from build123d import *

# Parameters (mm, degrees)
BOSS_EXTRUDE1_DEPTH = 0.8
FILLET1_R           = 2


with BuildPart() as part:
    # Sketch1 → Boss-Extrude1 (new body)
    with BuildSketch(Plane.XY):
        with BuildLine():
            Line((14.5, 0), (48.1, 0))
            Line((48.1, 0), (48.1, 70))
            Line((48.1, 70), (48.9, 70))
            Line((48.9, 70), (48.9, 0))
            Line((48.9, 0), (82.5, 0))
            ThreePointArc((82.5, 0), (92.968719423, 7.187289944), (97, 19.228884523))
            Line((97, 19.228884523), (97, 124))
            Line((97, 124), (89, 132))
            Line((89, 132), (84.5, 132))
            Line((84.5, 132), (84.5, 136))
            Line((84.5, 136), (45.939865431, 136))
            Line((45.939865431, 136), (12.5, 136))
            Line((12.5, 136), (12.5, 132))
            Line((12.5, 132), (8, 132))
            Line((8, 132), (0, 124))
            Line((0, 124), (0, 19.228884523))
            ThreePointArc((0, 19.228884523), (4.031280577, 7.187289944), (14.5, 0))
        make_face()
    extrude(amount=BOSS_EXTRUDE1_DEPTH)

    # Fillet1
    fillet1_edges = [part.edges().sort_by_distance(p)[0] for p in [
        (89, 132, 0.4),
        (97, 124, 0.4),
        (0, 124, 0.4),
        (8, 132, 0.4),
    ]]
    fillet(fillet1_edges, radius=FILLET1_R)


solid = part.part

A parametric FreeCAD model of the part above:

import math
import FreeCAD as App
import Part
import Sketcher
from FreeCAD import Vector
Q = App.Units.Quantity


def edges_at(feature, points):
    """Names of the edges that pass closest to the given points."""
    edges = feature.Shape.Edges
    near = lambda p: min(range(len(edges)), key=lambda i: edges[i].distToShape(Part.Vertex(*p))[0])
    return sorted({f"Edge{near(p) + 1}" for p in points})

doc = App.newDocument("Part")
body = doc.addObject("PartDesign::Body", "Body")

# Sketch on XY plane
sketch1 = body.newObject("Sketcher::SketchObject", "Sketch")
sketch1.AttachmentSupport = (doc.getObject("XY_Plane"), [""])
sketch1.MapMode = "FlatFace"
sketch1.addGeometry([
    Part.LineSegment(Vector(14.5, 0, 0), Vector(48.1, 0, 0)),  # 0
    Part.LineSegment(Vector(48.1, 0, 0), Vector(48.1, 70, 0)),  # 1
    Part.LineSegment(Vector(48.1, 70, 0), Vector(48.9, 70, 0)),  # 2
    Part.LineSegment(Vector(48.9, 70, 0), Vector(48.9, 0, 0)),  # 3
    Part.LineSegment(Vector(48.9, 0, 0), Vector(82.5, 0, 0)),  # 4
    Part.ArcOfCircle(Part.Circle(Vector(77, 19.2, 0), Vector(0, 0, 1), 20), math.radians(-74), math.radians(0)),  # 5
    Part.LineSegment(Vector(97, 19.2, 0), Vector(97, 124, 0)),  # 6
    Part.LineSegment(Vector(97, 124, 0), Vector(89, 132, 0)),  # 7
    Part.LineSegment(Vector(89, 132, 0), Vector(84.5, 132, 0)),  # 8
    Part.LineSegment(Vector(84.5, 132, 0), Vector(84.5, 136, 0)),  # 9
    Part.LineSegment(Vector(84.5, 136, 0), Vector(12.5, 136, 0)),  # 10
    Part.LineSegment(Vector(12.5, 136, 0), Vector(12.5, 132, 0)),  # 11
    Part.LineSegment(Vector(12.5, 132, 0), Vector(8, 132, 0)),  # 12
    Part.LineSegment(Vector(8, 132, 0), Vector(0, 124, 0)),  # 13
    Part.LineSegment(Vector(0, 124, 0), Vector(0, 19.2, 0)),  # 14
    Part.ArcOfCircle(Part.Circle(Vector(20, 19.2, 0), Vector(0, 0, 1), 20), math.radians(180), math.radians(254)),  # 15
], False)
sketch1.addConstraint([
    Sketcher.Constraint("Coincident", 0, 2, 1, 1),
    Sketcher.Constraint("Coincident", 1, 2, 2, 1),
    Sketcher.Constraint("Coincident", 2, 2, 3, 1),
    Sketcher.Constraint("Coincident", 3, 2, 4, 1),
    Sketcher.Constraint("Coincident", 4, 2, 5, 1),
    Sketcher.Constraint("Tangent", 5, 2, 6, 1),
    Sketcher.Constraint("Coincident", 6, 2, 7, 1),
    Sketcher.Constraint("Coincident", 7, 2, 8, 1),
    Sketcher.Constraint("Coincident", 8, 2, 9, 1),
    Sketcher.Constraint("Coincident", 9, 2, 10, 1),
    Sketcher.Constraint("Coincident", 10, 2, 11, 1),
    Sketcher.Constraint("Coincident", 11, 2, 12, 1),
    Sketcher.Constraint("Coincident", 12, 2, 13, 1),
    Sketcher.Constraint("Coincident", 13, 2, 14, 1),
    Sketcher.Constraint("Tangent", 14, 2, 15, 1),
    Sketcher.Constraint("Coincident", 15, 2, 0, 1),
    Sketcher.Constraint("Horizontal", 0),
    Sketcher.Constraint("Vertical", 1),
    Sketcher.Constraint("Horizontal", 2),
    Sketcher.Constraint("Vertical", 3),
    Sketcher.Constraint("Horizontal", 4),
    Sketcher.Constraint("Vertical", 6),
    Sketcher.Constraint("Horizontal", 8),
    Sketcher.Constraint("Vertical", 9),
    Sketcher.Constraint("Horizontal", 10),
    Sketcher.Constraint("Vertical", 11),
    Sketcher.Constraint("Horizontal", 12),
    Sketcher.Constraint("Vertical", 14),
    Sketcher.Constraint("Equal", 5, 15),
    Sketcher.Constraint("PointOnObject", 0, 2, -1),
    Sketcher.Constraint("PointOnObject", 3, 2, -1),
    Sketcher.Constraint("PointOnObject", 13, 2, -2),
    Sketcher.Constraint("Perpendicular", 7, 13),
    Sketcher.Constraint("Horizontal", 5, 3, 15, 3),
    Sketcher.Constraint("Horizontal", 8, 2, 11, 2),
    Sketcher.Constraint("Horizontal", 6, 2, 13, 2),
    Sketcher.Constraint("Equal", 0, 4),
    Sketcher.Constraint("Equal", 8, 12),
    Sketcher.Constraint("Equal", 7, 13),
    Sketcher.Constraint("Radius", 5, Q("20 mm")),
    Sketcher.Constraint("DistanceX", 10, 2, 10, 1, Q("72 mm")),
    Sketcher.Constraint("DistanceY", 1, 1, 1, 2, Q("70 mm")),
    Sketcher.Constraint("DistanceY", 9, 1, 9, 2, Q("4 mm")),
    Sketcher.Constraint("DistanceX", 0, 1, 0, 2, Q("33.6 mm")),
    Sketcher.Constraint("DistanceX", 2, 1, 2, 2, Q("0.8 mm")),
    Sketcher.Constraint("DistanceX", 8, 2, 8, 1, Q("4.5 mm")),
    Sketcher.Constraint("DistanceX", -1, 1, 5, 3, Q("77 mm")),
    Sketcher.Constraint("DistanceY", -1, 1, 6, 2, Q("124 mm")),
])
pad1 = body.newObject("PartDesign::Pad", "Pad")
pad1.Profile = sketch1
pad1.Length = 0.8
doc.recompute()

fillet = body.newObject("PartDesign::Fillet", "Fillet")
fillet.Base = (pad1, edges_at(pad1, [
    (89, 132, 0.4),
    (97, 124, 0.4),
    (0, 124, 0.4),
    (8, 132, 0.4),
]))
fillet.Radius = 2

doc.recompute()
